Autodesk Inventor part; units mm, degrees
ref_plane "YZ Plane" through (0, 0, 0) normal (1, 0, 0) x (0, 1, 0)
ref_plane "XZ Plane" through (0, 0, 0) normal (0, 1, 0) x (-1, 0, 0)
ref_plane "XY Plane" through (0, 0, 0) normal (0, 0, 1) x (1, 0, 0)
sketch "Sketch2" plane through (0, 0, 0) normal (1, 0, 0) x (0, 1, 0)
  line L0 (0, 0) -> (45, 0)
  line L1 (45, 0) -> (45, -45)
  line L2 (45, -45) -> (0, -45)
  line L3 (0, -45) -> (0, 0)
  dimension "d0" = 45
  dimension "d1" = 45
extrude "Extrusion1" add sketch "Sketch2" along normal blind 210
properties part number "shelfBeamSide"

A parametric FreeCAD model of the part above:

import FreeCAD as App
import Part
import Sketcher

V = App.Vector
Q = App.Units.Quantity


def add_polygon(sketch, points):
    """Adds a closed chain of lines whose ends are joined by coincident constraints."""
    first, n = sketch.GeometryCount, len(points)
    for a, b in zip(points, points[1:] + points[:1]):
        sketch.addGeometry(Part.LineSegment(App.Vector(*a, 0), App.Vector(*b, 0)), False)
    for i in range(n):
        sketch.addConstraint(Sketcher.Constraint("Coincident", first + i, 2, first + (i + 1) % n, 1))

doc = App.newDocument("Part")
body = doc.addObject("PartDesign::Body", "Body")

sketch1 = body.newObject("Sketcher::SketchObject", "Sketch")
sketch1.AttachmentSupport = (doc.getObject("YZ_Plane"), [""])
sketch1.MapMode = "FlatFace"
add_polygon(sketch1, [(45, 0), (0, 0), (0, -45), (45, -45)])
sketch1.addConstraint([
    Sketcher.Constraint("Horizontal", 0),
    Sketcher.Constraint("Vertical", 1),
    Sketcher.Constraint("Horizontal", 2),
    Sketcher.Constraint("Vertical", 3),
    Sketcher.Constraint("Coincident", 0, 2, -1, 1),
    Sketcher.Constraint("Equal", 2, 1),
    Sketcher.Constraint("DistanceX", 0, 2, 0, 1, Q("45 mm")),
])
pad1 = body.newObject("PartDesign::Pad", "Pad")
pad1.Profile = sketch1
pad1.Length = 210

doc.recompute()
